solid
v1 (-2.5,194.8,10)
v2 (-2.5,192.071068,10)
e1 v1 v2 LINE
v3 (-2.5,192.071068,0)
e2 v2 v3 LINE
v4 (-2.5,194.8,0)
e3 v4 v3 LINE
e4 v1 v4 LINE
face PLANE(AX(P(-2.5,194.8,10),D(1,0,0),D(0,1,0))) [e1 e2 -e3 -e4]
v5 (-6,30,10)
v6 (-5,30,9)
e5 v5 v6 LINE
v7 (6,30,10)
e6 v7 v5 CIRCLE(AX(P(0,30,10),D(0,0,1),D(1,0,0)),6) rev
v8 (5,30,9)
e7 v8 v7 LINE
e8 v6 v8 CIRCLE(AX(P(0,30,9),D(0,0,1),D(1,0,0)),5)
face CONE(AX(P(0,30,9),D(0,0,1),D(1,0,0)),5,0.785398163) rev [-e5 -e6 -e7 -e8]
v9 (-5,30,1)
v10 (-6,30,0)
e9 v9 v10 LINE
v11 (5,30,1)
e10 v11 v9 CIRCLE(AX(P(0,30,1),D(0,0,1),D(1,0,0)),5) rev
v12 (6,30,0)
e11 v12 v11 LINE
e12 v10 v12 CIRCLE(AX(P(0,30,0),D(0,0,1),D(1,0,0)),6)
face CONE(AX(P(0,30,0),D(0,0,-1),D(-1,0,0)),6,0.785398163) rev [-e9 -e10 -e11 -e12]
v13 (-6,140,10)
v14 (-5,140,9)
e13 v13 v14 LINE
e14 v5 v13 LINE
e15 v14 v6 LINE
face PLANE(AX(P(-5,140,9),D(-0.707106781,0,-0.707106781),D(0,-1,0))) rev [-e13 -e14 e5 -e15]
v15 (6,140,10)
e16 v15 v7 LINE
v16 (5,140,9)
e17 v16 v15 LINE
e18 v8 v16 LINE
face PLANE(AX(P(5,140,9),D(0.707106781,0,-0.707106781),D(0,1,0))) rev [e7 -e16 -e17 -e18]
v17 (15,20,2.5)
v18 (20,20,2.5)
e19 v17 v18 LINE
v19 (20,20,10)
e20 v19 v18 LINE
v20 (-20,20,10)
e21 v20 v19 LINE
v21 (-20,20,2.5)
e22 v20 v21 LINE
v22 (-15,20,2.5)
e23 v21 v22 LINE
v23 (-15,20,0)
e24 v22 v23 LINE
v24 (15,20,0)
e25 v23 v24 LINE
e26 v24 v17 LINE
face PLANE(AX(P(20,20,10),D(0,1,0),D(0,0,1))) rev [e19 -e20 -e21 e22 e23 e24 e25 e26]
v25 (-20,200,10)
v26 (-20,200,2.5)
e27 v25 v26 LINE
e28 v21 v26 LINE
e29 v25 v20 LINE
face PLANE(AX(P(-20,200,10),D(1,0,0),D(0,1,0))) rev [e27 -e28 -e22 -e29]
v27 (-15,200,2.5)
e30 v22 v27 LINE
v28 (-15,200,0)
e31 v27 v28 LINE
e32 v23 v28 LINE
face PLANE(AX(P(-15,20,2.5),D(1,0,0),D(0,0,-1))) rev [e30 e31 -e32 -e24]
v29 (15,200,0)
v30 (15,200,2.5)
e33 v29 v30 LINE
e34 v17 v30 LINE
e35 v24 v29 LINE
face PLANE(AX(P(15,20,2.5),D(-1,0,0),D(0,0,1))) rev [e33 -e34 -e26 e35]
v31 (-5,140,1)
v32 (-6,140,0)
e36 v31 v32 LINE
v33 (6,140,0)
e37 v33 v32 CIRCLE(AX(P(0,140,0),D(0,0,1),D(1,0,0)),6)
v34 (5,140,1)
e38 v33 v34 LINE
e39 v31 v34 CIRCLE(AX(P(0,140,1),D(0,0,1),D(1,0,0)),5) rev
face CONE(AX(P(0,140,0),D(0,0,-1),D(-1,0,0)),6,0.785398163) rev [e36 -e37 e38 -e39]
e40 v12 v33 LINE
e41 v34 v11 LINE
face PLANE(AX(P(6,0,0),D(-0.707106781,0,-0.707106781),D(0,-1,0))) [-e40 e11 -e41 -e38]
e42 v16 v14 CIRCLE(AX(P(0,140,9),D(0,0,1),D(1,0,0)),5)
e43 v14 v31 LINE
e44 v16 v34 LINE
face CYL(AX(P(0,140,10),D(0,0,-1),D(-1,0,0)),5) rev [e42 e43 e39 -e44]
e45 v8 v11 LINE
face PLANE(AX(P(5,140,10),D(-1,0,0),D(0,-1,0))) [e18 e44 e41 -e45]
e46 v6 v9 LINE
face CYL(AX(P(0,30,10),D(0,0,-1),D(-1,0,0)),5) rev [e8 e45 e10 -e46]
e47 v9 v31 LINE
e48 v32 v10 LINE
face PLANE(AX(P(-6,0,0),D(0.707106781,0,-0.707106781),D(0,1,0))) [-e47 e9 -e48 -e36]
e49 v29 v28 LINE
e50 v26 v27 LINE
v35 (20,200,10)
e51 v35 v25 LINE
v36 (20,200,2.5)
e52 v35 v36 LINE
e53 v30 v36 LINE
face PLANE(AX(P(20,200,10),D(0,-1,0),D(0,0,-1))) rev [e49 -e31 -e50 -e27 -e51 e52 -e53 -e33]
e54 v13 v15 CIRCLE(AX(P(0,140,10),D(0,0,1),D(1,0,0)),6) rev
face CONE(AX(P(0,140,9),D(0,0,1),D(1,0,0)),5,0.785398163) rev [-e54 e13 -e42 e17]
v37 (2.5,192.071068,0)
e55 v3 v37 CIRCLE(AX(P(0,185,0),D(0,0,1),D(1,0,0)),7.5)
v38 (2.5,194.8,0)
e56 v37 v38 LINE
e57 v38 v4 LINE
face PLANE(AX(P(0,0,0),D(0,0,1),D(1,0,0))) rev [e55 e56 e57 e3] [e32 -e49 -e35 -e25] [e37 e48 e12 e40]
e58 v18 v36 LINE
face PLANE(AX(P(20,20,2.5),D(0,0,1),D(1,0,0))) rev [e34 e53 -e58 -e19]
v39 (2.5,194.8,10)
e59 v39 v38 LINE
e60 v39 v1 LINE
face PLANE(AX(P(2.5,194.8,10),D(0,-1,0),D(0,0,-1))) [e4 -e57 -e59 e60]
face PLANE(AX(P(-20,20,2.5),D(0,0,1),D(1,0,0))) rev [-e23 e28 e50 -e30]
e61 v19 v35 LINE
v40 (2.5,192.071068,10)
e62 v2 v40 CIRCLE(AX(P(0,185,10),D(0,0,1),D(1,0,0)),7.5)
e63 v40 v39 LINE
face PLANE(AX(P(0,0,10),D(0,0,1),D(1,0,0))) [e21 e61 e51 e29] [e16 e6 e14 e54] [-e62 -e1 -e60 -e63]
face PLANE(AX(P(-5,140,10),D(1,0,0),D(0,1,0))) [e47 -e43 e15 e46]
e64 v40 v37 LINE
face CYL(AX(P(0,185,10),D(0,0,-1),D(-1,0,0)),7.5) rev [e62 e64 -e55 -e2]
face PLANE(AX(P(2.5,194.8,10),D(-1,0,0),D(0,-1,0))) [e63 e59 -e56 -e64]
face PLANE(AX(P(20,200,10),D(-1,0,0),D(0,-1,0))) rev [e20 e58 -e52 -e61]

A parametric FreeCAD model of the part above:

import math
import FreeCAD as App
import Part
import Sketcher
from FreeCAD import Vector


def edges_at(feature, points):
    """Names of the edges that pass closest to the given points."""
    edges = feature.Shape.Edges
    near = lambda p: min(range(len(edges)), key=lambda i: edges[i].distToShape(Part.Vertex(*p))[0])
    return sorted({f"Edge{near(p) + 1}" for p in points})


def add_polygon(sketch, points):
    """Adds a closed chain of lines whose ends are joined by coincident constraints."""
    first, n = sketch.GeometryCount, len(points)
    for a, b in zip(points, points[1:] + points[:1]):
        sketch.addGeometry(Part.LineSegment(App.Vector(*a, 0), App.Vector(*b, 0)), False)
    for i in range(n):
        sketch.addConstraint(Sketcher.Constraint("Coincident", first + i, 2, first + (i + 1) % n, 1))

doc = App.newDocument("Part")
body = doc.addObject("PartDesign::Body", "Body")

# Sketch on XY plane
sketch1 = body.newObject("Sketcher::SketchObject", "Sketch")
sketch1.AttachmentSupport = (doc.getObject("XY_Plane"), [""])
sketch1.MapMode = "FlatFace"
add_polygon(sketch1, [(-20, 200), (-20, 20), (20, 20), (20, 200)])  # lines 0-3
sketch1.addGeometry(Part.ArcOfCircle(Part.Circle(Vector(0, 140, 0), Vector(0, 0, 1), 5), math.radians(0), math.radians(180)), False)  # 4
sketch1.addGeometry(Part.LineSegment(Vector(5, 140, 0), Vector(5, 30, 0)), False)  # 5
sketch1.addGeometry(Part.ArcOfCircle(Part.Circle(Vector(0, 30, 0), Vector(0, 0, 1), 5), math.radians(180), math.radians(360)), False)  # 6
sketch1.addGeometry(Part.LineSegment(Vector(-5, 30, 0), Vector(-5, 140, 0)), False)  # 7
sketch1.addGeometry(Part.LineSegment(Vector(-2.5, 194.8, 0), Vector(2.5, 194.8, 0)), False)  # 8
sketch1.addGeometry(Part.LineSegment(Vector(2.5, 194.8, 0), Vector(2.5, 192.071068, 0)), False)  # 9
sketch1.addGeometry(Part.ArcOfCircle(Part.Circle(Vector(0, 185, 0), Vector(0, 0, 1), 7.5), math.radians(109.471221), math.radians(430.528779)), False)  # 10
sketch1.addGeometry(Part.LineSegment(Vector(-2.5, 192.071068, 0), Vector(-2.5, 194.8, 0)), False)  # 11
sketch1.addConstraint([
    Sketcher.Constraint("Tangent", 4, 1, 5, 1),
    Sketcher.Constraint("Tangent", 5, 2, 6, 2),
    Sketcher.Constraint("Tangent", 6, 1, 7, 1),
    Sketcher.Constraint("Tangent", 7, 2, 4, 2),
    Sketcher.Constraint("Coincident", 8, 2, 9, 1),
    Sketcher.Constraint("Coincident", 9, 2, 10, 2),
    Sketcher.Constraint("Coincident", 10, 1, 11, 1),
    Sketcher.Constraint("Coincident", 11, 2, 8, 1),
    Sketcher.Constraint("Vertical", 0),
    Sketcher.Constraint("Horizontal", 1),
    Sketcher.Constraint("Vertical", 2),
    Sketcher.Constraint("Horizontal", 3),
    Sketcher.Constraint("Vertical", 5),
    Sketcher.Constraint("Vertical", 7),
    Sketcher.Constraint("Horizontal", 8),
    Sketcher.Constraint("Vertical", 9),
    Sketcher.Constraint("Vertical", 11),
    Sketcher.Constraint("Symmetric", 9, 2, 10, 1, -2),
    Sketcher.Constraint("PointOnObject", 4, 3, -2),
    Sketcher.Constraint("Radius", 4, 5.0),
    Sketcher.Constraint("Radius", 10, 7.5),
    Sketcher.Constraint("DistanceX", 1, 1, 1, 2, 40.0),
    Sketcher.Constraint("DistanceX", 8, 1, 8, 2, 5.0),
    Sketcher.Constraint("DistanceY", 0, 2, 0, 1, 180.0),
    Sketcher.Constraint("DistanceY", 5, 2, 5, 1, 110.0),
    Sketcher.Constraint("DistanceY", -1, 1, 4, 3, 140.0),
    Sketcher.Constraint("DistanceY", -1, 1, 10, 3, 185.0),
    Sketcher.Constraint("DistanceX", 0, 2, -1, 1, 20.0),
    Sketcher.Constraint("DistanceY", -1, 1, 0, 2, 20.0),
    Sketcher.Constraint("DistanceY", -1, 1, 8, 2, 194.8),
])
pad1 = body.newObject("PartDesign::Pad", "Pad")
pad1.Profile = sketch1
pad1.Length = 10

# Sketch on XZ plane
sketch2 = body.newObject("Sketcher::SketchObject", "Sketch001")
sketch2.AttachmentSupport = (doc.getObject("XZ_Plane"), [""])
sketch2.MapMode = "FlatFace"
sketch2.AttachmentOffset = App.Placement(Vector(0, 0, -200), App.Rotation())
add_polygon(sketch2, [(-20, 0), (-20, 2.5), (-15, 2.5), (-15, 0)])  # lines 0-3
add_polygon(sketch2, [(15, 0), (15, 2.5), (20, 2.5), (20, 0)])  # lines 4-7
sketch2.addConstraint([
    Sketcher.Constraint("Vertical", 0),
    Sketcher.Constraint("Horizontal", 1),
    Sketcher.Constraint("Vertical", 2),
    Sketcher.Constraint("Horizontal", 3),
    Sketcher.Constraint("Vertical", 4),
    Sketcher.Constraint("Horizontal", 5),
    Sketcher.Constraint("Vertical", 6),
    Sketcher.Constraint("Horizontal", 7),
    Sketcher.Constraint("Symmetric", 3, 2, 6, 2, -1, 1),
    Sketcher.Constraint("Symmetric", 1, 2, 4, 2, -2),
    Sketcher.Constraint("PointOnObject", 2, 2, -1),
    Sketcher.Constraint("DistanceX", 1, 1, 1, 2, 5.0),
    Sketcher.Constraint("DistanceY", 0, 1, 0, 2, 2.5),
    Sketcher.Constraint("DistanceX", 0, 2, -1, 1, 20.0),
])
pocket1 = body.newObject("PartDesign::Pocket", "Pocket")
pocket1.Profile = sketch2
pocket1.Type = "ThroughAll"
pocket1.Reversed = True
doc.recompute()

chamfer = body.newObject("PartDesign::Chamfer", "Chamfer")
chamfer.Base = (pocket1, edges_at(pocket1, [
    (0, 145, 0),
    (-5, 85, 0),
    (0, 25, 0),
    (5, 85, 0),
    (0, 145, 10),
    (-5, 85, 10),
    (0, 25, 10),
    (5, 85, 10),
]))
chamfer.Size = 1

doc.recompute()
